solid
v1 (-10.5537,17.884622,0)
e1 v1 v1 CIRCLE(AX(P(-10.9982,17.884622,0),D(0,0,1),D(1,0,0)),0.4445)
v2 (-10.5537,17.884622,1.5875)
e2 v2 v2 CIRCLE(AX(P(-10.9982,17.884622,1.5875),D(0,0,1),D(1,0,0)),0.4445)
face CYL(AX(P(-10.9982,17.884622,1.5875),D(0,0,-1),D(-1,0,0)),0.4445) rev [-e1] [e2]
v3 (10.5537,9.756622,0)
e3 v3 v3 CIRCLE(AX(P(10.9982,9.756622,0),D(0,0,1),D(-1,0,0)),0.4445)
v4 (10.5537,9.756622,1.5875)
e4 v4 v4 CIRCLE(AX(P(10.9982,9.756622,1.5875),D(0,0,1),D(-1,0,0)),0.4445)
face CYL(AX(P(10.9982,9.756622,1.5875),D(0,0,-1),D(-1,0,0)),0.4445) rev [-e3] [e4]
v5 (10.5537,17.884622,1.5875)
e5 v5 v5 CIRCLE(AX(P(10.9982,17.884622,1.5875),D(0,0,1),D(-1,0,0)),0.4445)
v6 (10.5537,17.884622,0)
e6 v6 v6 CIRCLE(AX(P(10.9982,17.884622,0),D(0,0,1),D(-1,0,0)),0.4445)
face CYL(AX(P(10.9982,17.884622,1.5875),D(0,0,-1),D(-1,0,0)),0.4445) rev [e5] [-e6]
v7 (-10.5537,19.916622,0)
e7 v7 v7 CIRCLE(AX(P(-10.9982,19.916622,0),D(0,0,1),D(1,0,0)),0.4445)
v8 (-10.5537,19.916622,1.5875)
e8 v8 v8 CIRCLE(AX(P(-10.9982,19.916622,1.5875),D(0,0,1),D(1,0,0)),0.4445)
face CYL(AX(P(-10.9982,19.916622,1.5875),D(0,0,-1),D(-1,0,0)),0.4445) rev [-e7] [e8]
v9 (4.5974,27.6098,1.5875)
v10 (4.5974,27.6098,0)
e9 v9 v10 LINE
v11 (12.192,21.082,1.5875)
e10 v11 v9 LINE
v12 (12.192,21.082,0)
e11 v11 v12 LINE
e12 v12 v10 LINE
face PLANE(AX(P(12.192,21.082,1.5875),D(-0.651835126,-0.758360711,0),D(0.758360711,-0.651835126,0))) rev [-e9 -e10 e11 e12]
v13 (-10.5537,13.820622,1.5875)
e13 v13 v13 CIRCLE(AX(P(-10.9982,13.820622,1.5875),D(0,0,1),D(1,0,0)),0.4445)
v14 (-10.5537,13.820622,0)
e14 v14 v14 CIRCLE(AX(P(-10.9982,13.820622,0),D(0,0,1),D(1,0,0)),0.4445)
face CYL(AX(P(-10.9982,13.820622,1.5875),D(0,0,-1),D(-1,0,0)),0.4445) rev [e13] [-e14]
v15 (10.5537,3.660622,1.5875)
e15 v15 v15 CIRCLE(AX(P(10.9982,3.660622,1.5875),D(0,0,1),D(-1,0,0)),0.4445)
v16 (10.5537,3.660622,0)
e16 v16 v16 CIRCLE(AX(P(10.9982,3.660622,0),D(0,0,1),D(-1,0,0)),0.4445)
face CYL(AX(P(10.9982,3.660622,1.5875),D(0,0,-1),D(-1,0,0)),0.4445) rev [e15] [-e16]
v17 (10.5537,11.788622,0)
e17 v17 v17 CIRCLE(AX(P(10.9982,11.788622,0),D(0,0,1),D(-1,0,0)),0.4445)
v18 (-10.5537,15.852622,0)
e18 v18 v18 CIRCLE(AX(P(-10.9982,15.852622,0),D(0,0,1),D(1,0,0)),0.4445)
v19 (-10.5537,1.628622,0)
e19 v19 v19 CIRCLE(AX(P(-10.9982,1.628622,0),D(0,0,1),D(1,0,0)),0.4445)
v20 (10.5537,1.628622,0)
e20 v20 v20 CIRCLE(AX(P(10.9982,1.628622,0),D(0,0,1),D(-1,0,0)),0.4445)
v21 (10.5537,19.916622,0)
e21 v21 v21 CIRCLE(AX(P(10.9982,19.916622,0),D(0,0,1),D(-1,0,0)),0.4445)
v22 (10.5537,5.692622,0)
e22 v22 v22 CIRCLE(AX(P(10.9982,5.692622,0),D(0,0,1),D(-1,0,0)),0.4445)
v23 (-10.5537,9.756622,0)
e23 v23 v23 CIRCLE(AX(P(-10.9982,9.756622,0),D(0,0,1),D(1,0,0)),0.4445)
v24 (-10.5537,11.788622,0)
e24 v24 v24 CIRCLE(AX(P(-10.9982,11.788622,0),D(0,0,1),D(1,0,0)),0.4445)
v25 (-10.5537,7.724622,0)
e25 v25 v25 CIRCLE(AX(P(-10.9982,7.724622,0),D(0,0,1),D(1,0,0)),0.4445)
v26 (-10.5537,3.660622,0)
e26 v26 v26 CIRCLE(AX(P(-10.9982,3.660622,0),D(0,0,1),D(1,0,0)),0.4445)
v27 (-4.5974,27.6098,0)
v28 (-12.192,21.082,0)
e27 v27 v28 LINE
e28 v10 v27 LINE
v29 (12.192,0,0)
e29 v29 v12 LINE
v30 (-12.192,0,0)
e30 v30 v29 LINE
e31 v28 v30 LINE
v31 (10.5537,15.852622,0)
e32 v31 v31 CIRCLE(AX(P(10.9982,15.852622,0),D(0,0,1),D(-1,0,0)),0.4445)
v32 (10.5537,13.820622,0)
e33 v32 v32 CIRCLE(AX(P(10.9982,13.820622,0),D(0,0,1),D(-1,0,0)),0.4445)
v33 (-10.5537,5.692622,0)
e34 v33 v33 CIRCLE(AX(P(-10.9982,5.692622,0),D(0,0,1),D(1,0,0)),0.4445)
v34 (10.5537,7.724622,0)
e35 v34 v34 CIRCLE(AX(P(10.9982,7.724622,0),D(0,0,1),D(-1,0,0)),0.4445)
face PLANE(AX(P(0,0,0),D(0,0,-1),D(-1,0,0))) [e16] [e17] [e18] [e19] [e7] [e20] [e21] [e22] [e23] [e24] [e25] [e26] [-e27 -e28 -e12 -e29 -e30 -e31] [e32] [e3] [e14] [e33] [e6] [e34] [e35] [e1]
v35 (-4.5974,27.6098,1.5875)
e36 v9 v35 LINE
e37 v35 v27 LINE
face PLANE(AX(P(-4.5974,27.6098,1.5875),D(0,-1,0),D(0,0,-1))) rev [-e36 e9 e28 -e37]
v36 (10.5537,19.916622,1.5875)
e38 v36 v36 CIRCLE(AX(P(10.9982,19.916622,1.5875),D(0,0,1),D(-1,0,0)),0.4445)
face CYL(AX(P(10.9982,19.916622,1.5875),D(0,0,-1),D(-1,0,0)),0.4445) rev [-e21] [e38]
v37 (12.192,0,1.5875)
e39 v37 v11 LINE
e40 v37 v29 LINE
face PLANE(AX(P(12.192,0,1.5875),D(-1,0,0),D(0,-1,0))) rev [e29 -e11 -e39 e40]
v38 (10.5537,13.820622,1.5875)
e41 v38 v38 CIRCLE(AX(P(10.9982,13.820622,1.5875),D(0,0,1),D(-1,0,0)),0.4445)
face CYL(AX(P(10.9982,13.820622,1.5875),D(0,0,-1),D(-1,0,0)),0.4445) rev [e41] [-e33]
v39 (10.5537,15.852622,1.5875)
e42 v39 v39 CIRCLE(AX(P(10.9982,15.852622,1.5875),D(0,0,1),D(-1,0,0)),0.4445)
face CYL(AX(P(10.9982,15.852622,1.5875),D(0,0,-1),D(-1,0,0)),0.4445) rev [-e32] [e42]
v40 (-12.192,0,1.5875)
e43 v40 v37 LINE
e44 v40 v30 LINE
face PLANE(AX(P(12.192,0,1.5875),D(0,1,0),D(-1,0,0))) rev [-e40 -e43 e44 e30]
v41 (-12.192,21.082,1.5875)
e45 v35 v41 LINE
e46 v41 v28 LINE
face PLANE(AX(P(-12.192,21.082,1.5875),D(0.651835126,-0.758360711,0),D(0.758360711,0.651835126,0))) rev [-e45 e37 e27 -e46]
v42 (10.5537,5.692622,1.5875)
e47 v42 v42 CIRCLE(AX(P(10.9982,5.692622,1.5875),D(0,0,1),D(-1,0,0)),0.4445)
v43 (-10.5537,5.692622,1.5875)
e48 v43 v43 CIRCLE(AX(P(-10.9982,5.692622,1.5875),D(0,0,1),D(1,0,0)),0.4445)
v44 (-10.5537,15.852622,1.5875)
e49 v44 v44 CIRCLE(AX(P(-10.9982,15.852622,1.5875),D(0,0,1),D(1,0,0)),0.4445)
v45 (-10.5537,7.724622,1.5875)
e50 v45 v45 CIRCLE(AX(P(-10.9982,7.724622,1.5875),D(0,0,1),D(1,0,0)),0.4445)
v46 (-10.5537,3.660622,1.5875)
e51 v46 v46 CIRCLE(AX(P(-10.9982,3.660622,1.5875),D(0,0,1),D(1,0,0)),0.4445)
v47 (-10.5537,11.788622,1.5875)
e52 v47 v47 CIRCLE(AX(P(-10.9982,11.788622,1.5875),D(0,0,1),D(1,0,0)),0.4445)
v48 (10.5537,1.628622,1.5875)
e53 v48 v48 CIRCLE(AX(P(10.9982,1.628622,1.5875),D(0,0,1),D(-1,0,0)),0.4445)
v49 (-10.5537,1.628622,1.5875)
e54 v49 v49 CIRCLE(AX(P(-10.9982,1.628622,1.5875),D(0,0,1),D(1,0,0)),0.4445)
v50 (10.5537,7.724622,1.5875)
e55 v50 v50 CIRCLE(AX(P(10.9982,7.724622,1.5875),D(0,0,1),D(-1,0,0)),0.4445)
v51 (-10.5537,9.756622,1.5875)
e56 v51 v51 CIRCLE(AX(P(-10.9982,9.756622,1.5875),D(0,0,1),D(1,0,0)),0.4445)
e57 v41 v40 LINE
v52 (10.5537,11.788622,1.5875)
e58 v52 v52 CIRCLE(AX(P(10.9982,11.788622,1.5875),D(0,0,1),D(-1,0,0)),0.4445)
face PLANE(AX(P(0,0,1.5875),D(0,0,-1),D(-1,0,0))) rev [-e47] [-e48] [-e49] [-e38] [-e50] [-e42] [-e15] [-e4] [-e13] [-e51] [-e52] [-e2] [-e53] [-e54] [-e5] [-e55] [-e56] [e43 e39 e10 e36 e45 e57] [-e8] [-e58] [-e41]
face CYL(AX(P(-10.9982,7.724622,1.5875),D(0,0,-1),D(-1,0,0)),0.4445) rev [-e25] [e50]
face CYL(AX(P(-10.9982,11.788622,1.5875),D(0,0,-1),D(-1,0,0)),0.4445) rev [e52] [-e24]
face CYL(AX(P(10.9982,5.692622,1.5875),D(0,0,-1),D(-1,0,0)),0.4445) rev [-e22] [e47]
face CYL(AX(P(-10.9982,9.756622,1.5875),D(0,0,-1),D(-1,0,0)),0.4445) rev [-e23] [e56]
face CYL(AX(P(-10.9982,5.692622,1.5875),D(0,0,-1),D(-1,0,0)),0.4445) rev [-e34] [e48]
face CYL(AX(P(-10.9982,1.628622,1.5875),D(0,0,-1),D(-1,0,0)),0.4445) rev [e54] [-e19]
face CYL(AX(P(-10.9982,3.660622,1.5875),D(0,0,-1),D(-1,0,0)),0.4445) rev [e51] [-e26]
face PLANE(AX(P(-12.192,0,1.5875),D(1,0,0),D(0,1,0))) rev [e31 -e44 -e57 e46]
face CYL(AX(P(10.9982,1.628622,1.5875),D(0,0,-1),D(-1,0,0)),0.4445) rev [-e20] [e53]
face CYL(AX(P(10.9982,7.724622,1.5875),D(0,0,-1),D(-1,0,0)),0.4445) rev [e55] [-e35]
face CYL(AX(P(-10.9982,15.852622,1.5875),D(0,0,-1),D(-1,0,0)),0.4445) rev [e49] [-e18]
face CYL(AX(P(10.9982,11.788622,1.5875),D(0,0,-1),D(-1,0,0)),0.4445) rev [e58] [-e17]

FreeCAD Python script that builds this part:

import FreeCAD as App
import Part
import Sketcher
Q = App.Units.Quantity


def add_polygon(sketch, points):
    """Adds a closed chain of lines whose ends are joined by coincident constraints."""
    first, n = sketch.GeometryCount, len(points)
    for a, b in zip(points, points[1:] + points[:1]):
        sketch.addGeometry(Part.LineSegment(App.Vector(*a, 0), App.Vector(*b, 0)), False)
    for i in range(n):
        sketch.addConstraint(Sketcher.Constraint("Coincident", first + i, 2, first + (i + 1) % n, 1))

doc = App.newDocument("Part")
body = doc.addObject("PartDesign::Body", "Body")

# Sketch on XY plane
sketch1 = doc.addObject("Sketcher::SketchObject", "Sketch")
body.addObject(sketch1)
sketch1.AttachmentSupport = (doc.XY_Plane, [""])
sketch1.MapMode = "FlatFace"
add_polygon(sketch1, [(-12.19, 0), (12.19, 0), (12.19, 21.08), (4.6, 27.61), (-4.6, 27.61), (-12.19, 21.08)])  # lines 0-5
sketch1.addGeometry(Part.Circle(App.Vector(11, 1.63, 0), App.Vector(0, 0, 1), 0.44), False)  # 6
sketch1.addGeometry(Part.Circle(App.Vector(11, 3.66, 0), App.Vector(0, 0, 1), 0.44), False)  # 7
sketch1.addGeometry(Part.Circle(App.Vector(11, 5.69, 0), App.Vector(0, 0, 1), 0.44), False)  # 8
sketch1.addGeometry(Part.Circle(App.Vector(11, 7.72, 0), App.Vector(0, 0, 1), 0.44), False)  # 9
sketch1.addGeometry(Part.Circle(App.Vector(11, 9.76, 0), App.Vector(0, 0, 1), 0.44), False)  # 10
sketch1.addGeometry(Part.Circle(App.Vector(-11, 1.63, 0), App.Vector(0, 0, 1), 0.44), False)  # 11
sketch1.addGeometry(Part.Circle(App.Vector(-11, 3.66, 0), App.Vector(0, 0, 1), 0.44), False)  # 12
sketch1.addGeometry(Part.Circle(App.Vector(-11, 5.69, 0), App.Vector(0, 0, 1), 0.44), False)  # 13
sketch1.addGeometry(Part.Circle(App.Vector(-11, 7.72, 0), App.Vector(0, 0, 1), 0.44), False)  # 14
sketch1.addGeometry(Part.Circle(App.Vector(-11, 9.76, 0), App.Vector(0, 0, 1), 0.44), False)  # 15
sketch1.addGeometry(Part.Circle(App.Vector(11, 11.79, 0), App.Vector(0, 0, 1), 0.44), False)  # 16
sketch1.addGeometry(Part.Circle(App.Vector(11, 13.82, 0), App.Vector(0, 0, 1), 0.44), False)  # 17
sketch1.addGeometry(Part.Circle(App.Vector(11, 15.85, 0), App.Vector(0, 0, 1), 0.44), False)  # 18
sketch1.addGeometry(Part.Circle(App.Vector(11, 17.88, 0), App.Vector(0, 0, 1), 0.44), False)  # 19
sketch1.addGeometry(Part.Circle(App.Vector(11, 19.92, 0), App.Vector(0, 0, 1), 0.44), False)  # 20
sketch1.addGeometry(Part.Circle(App.Vector(-11, 11.79, 0), App.Vector(0, 0, 1), 0.44), False)  # 21
sketch1.addGeometry(Part.Circle(App.Vector(-11, 13.82, 0), App.Vector(0, 0, 1), 0.44), False)  # 22
sketch1.addGeometry(Part.Circle(App.Vector(-11, 15.85, 0), App.Vector(0, 0, 1), 0.44), False)  # 23
sketch1.addGeometry(Part.Circle(App.Vector(-11, 17.88, 0), App.Vector(0, 0, 1), 0.44), False)  # 24
sketch1.addGeometry(Part.Circle(App.Vector(-11, 19.92, 0), App.Vector(0, 0, 1), 0.44), False)  # 25
sketch1.addConstraint([
    Sketcher.Constraint("Horizontal", 0),
    Sketcher.Constraint("Vertical", 1),
    Sketcher.Constraint("Horizontal", 3),
    Sketcher.Constraint("Vertical", 5),
    Sketcher.Constraint("Equal", 6, 7),
    Sketcher.Constraint("Equal", 7, 8),
    Sketcher.Constraint("Equal", 8, 9),
    Sketcher.Constraint("Equal", 9, 10),
    Sketcher.Constraint("Equal", 10, 11),
    Sketcher.Constraint("Equal", 11, 12),
    Sketcher.Constraint("Equal", 12, 13),
    Sketcher.Constraint("Equal", 13, 14),
    Sketcher.Constraint("Equal", 14, 15),
    Sketcher.Constraint("Equal", 15, 16),
    Sketcher.Constraint("Equal", 16, 17),
    Sketcher.Constraint("Equal", 17, 18),
    Sketcher.Constraint("Equal", 18, 19),
    Sketcher.Constraint("Equal", 19, 20),
    Sketcher.Constraint("Equal", 20, 21),
    Sketcher.Constraint("Equal", 21, 22),
    Sketcher.Constraint("Equal", 22, 23),
    Sketcher.Constraint("Equal", 23, 24),
    Sketcher.Constraint("Equal", 24, 25),
    Sketcher.Constraint("Symmetric", 0, 2, 5, 2, -1, 1),
    Sketcher.Constraint("Symmetric", 6, 3, 11, 3, -2),
    Sketcher.Constraint("Symmetric", 7, 3, 12, 3, -2),
    Sketcher.Constraint("Symmetric", 8, 3, 13, 3, -2),
    Sketcher.Constraint("Symmetric", 9, 3, 14, 3, -2),
    Sketcher.Constraint("Symmetric", 10, 3, 15, 3, -2),
    Sketcher.Constraint("Symmetric", 16, 3, 21, 3, -2),
    Sketcher.Constraint("Symmetric", 17, 3, 22, 3, -2),
    Sketcher.Constraint("Symmetric", 18, 3, 23, 3, -2),
    Sketcher.Constraint("Symmetric", 19, 3, 24, 3, -2),
    Sketcher.Constraint("Symmetric", 20, 3, 25, 3, -2),
    Sketcher.Constraint("Horizontal", 1, 2, 4, 2),
    Sketcher.Constraint("Vertical", 6, 3, 7, 3),
    Sketcher.Constraint("Vertical", 7, 3, 8, 3),
    Sketcher.Constraint("Vertical", 8, 3, 9, 3),
    Sketcher.Constraint("Vertical", 9, 3, 10, 3),
    Sketcher.Constraint("Vertical", 10, 3, 16, 3),
    Sketcher.Constraint("Vertical", 16, 3, 17, 3),
    Sketcher.Constraint("Vertical", 17, 3, 18, 3),
    Sketcher.Constraint("Vertical", 18, 3, 19, 3),
    Sketcher.Constraint("Vertical", 19, 3, 20, 3),
    Sketcher.Constraint("Equal", 2, 4),
    Sketcher.Constraint("Diameter", 6, Q("0.035 in")),
    Sketcher.Constraint("DistanceX", 0, 1, 0, 2, Q("0.96 in")),
    Sketcher.Constraint("DistanceY", 1, 1, 1, 2, Q("0.83 in")),
    Sketcher.Constraint("DistanceY", 6, 3, 16, 3, Q("0.4 in")),
    Sketcher.Constraint("DistanceY", 7, 3, 17, 3, Q("0.4 in")),
    Sketcher.Constraint("DistanceY", 8, 3, 18, 3, Q("0.4 in")),
    Sketcher.Constraint("DistanceY", 9, 3, 19, 3, Q("0.4 in")),
    Sketcher.Constraint("DistanceY", 10, 3, 20, 3, Q("0.4 in")),
    Sketcher.Constraint("DistanceX", 3, 2, 3, 1, Q("0.362 in")),
    Sketcher.Constraint("DistanceY", 6, 3, 7, 3, Q("0.08 in")),
    Sketcher.Constraint("DistanceY", 7, 3, 8, 3, Q("0.08 in")),
    Sketcher.Constraint("DistanceY", 8, 3, 9, 3, Q("0.08 in")),
    Sketcher.Constraint("DistanceY", 9, 3, 10, 3, Q("0.08 in")),
    Sketcher.Constraint("DistanceX", -1, 1, 6, 3, Q("0.433 in")),
    Sketcher.Constraint("DistanceY", -1, 1, 2, 2, Q("1.087 in")),
    Sketcher.Constraint("DistanceY", -1, 1, 6, 3, Q("1.628622 mm")),
])
pad1 = doc.addObject("PartDesign::Pad", "Pad")
body.addObject(pad1)
pad1.Profile = sketch1
pad1.Length = Q("0.0625 in")

doc.recompute()
